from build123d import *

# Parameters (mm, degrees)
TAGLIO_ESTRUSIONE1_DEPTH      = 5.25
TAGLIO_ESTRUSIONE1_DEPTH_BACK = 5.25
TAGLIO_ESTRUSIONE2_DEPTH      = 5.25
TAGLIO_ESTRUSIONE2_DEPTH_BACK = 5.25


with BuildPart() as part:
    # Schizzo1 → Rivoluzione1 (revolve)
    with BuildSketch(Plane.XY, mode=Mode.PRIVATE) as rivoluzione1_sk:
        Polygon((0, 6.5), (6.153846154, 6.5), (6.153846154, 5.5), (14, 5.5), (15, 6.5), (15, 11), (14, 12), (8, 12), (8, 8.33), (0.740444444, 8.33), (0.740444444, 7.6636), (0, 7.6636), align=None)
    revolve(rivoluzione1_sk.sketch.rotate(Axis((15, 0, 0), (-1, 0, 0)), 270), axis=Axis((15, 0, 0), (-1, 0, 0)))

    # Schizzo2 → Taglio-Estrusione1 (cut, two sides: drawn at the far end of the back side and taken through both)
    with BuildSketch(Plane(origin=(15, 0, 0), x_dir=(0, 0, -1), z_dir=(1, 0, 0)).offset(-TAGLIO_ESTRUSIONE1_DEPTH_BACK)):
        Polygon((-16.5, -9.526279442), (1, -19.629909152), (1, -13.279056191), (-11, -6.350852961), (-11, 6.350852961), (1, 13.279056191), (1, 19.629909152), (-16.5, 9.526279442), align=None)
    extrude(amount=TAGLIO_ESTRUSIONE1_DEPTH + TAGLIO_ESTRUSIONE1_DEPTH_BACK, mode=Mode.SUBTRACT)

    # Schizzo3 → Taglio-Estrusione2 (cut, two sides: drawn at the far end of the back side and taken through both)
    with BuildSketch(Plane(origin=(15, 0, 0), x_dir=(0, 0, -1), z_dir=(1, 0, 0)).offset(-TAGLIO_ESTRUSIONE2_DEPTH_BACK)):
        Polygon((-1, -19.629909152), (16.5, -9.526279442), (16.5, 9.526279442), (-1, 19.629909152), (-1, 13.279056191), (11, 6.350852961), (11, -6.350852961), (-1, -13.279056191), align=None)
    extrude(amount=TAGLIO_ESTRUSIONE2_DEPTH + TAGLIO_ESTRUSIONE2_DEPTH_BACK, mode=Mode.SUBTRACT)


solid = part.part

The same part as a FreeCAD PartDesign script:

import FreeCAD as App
import Part
import Sketcher
Q = App.Units.Quantity

doc = App.newDocument("Part")
body = doc.addObject("PartDesign::Body", "Body")

sketch1 = body.newObject("Sketcher::SketchObject", "Sketch")
sketch1.AttachmentSupport = (doc.getObject("XY_Plane"), [""])
sketch1.MapMode = "FlatFace"
sketch1.addGeometry(Part.LineSegment(App.Vector(0, 6.5, 0), App.Vector(6.153846, 6.5, 0)), False)
sketch1.addGeometry(Part.LineSegment(App.Vector(6.153846, 6.5, 0), App.Vector(6.153846, 5.5, 0)), False)
sketch1.addGeometry(Part.LineSegment(App.Vector(6.153846, 5.5, 0), App.Vector(14, 5.5, 0)), False)
sketch1.addGeometry(Part.LineSegment(App.Vector(14, 5.5, 0), App.Vector(15, 6.5, 0)), False)
sketch1.addGeometry(Part.LineSegment(App.Vector(15, 6.5, 0), App.Vector(15, 11, 0)), False)
sketch1.addGeometry(Part.LineSegment(App.Vector(15, 11, 0), App.Vector(14, 12, 0)), False)
sketch1.addGeometry(Part.LineSegment(App.Vector(14, 12, 0), App.Vector(8, 12, 0)), False)
sketch1.addGeometry(Part.LineSegment(App.Vector(8, 12, 0), App.Vector(8, 8.33, 0)), False)
sketch1.addGeometry(Part.LineSegment(App.Vector(8, 8.33, 0), App.Vector(0.740444, 8.33, 0)), False)
sketch1.addGeometry(Part.LineSegment(App.Vector(0.740444, 8.33, 0), App.Vector(0.740444, 7.6636, 0)), False)
sketch1.addGeometry(Part.LineSegment(App.Vector(0.740444, 7.6636, 0), App.Vector(0, 7.6636, 0)), False)
sketch1.addGeometry(Part.LineSegment(App.Vector(0, 7.6636, 0), App.Vector(0, 6.5, 0)), False)
sketch1.addConstraint(Sketcher.Constraint("Coincident", 0, 2, 1, 1))
sketch1.addConstraint(Sketcher.Constraint("Coincident", 1, 2, 2, 1))
sketch1.addConstraint(Sketcher.Constraint("Coincident", 2, 2, 3, 1))
sketch1.addConstraint(Sketcher.Constraint("Coincident", 3, 2, 4, 1))
sketch1.addConstraint(Sketcher.Constraint("Coincident", 4, 2, 5, 1))
sketch1.addConstraint(Sketcher.Constraint("Coincident", 5, 2, 6, 1))
sketch1.addConstraint(Sketcher.Constraint("Coincident", 6, 2, 7, 1))
sketch1.addConstraint(Sketcher.Constraint("Coincident", 7, 2, 8, 1))
sketch1.addConstraint(Sketcher.Constraint("Coincident", 8, 2, 9, 1))
sketch1.addConstraint(Sketcher.Constraint("Coincident", 9, 2, 10, 1))
sketch1.addConstraint(Sketcher.Constraint("Coincident", 10, 2, 11, 1))
sketch1.addConstraint(Sketcher.Constraint("Coincident", 11, 2, 0, 1))
sketch1.addConstraint(Sketcher.Constraint("Horizontal", 0))
sketch1.addConstraint(Sketcher.Constraint("Vertical", 1))
sketch1.addConstraint(Sketcher.Constraint("Horizontal", 2))
sketch1.addConstraint(Sketcher.Constraint("Vertical", 4))
sketch1.addConstraint(Sketcher.Constraint("Horizontal", 6))
sketch1.addConstraint(Sketcher.Constraint("Vertical", 7))
sketch1.addConstraint(Sketcher.Constraint("Horizontal", 8))
sketch1.addConstraint(Sketcher.Constraint("Vertical", 9))
sketch1.addConstraint(Sketcher.Constraint("Horizontal", 10))
sketch1.addConstraint(Sketcher.Constraint("Vertical", 11))
sketch1.addConstraint(Sketcher.Constraint("PointOnObject", 10, 2, -2))
sketch1.addConstraint(Sketcher.Constraint("Perpendicular", 3, 5))
sketch1.addConstraint(Sketcher.Constraint("Horizontal", 0, 2, 3, 2))
sketch1.addConstraint(Sketcher.Constraint("Vertical", 2, 2, 5, 2))
sketch1.addConstraint(Sketcher.Constraint("Equal", 3, 5))
sketch1.addConstraint(Sketcher.Constraint("DistanceX", 6, 2, 6, 1, 6.0))
sketch1.addConstraint(Sketcher.Constraint("DistanceY", 1, 2, 1, 1, 1.0))
sketch1.addConstraint(Sketcher.Constraint("DistanceY", 4, 1, 4, 2, 4.5))
sketch1.addConstraint(Sketcher.Constraint("DistanceX", -1, 1, 2, 2, 14.0))
sketch1.addConstraint(Sketcher.Constraint("DistanceY", -1, 1, 4, 2, 11.0))
sketch1.addConstraint(Sketcher.Constraint("DistanceY", 7, 2, 7, 1, 3.67))
sketch1.addConstraint(Sketcher.Constraint("DistanceY", 9, 2, 9, 1, 0.6664))
sketch1.addConstraint(Sketcher.Constraint("DistanceX", 8, 2, 0, 2, 5.413402))
sketch1.addConstraint(Sketcher.Constraint("DistanceX", 0, 1, 0, 2, 6.153846))
revolution = body.newObject("PartDesign::Revolution", "Revolution")
revolution.Profile = sketch1
revolution.ReferenceAxis = (sketch1, ["H_Axis"])
revolution.Angle = 360

sketch2 = body.newObject("Sketcher::SketchObject", "Sketch001")
sketch2.AttachmentSupport = (doc.getObject("YZ_Plane"), [""])
sketch2.MapMode = "FlatFace"
sketch2.AttachmentOffset = App.Placement(App.Vector(0, 0, 15), App.Rotation())
sketch2.addGeometry(Part.LineSegment(App.Vector(-9.526279, 16.5, 0), App.Vector(-19.629909, -1, 0)), False)
sketch2.addGeometry(Part.LineSegment(App.Vector(-19.629909, -1, 0), App.Vector(-13.279056, -1, 0)), False)
sketch2.addGeometry(Part.LineSegment(App.Vector(-13.279056, -1, 0), App.Vector(-6.350853, 11, 0)), False)
sketch2.addGeometry(Part.LineSegment(App.Vector(-6.350853, 11, 0), App.Vector(6.350853, 11, 0)), False)
sketch2.addGeometry(Part.LineSegment(App.Vector(6.350853, 11, 0), App.Vector(13.279056, -1, 0)), False)
sketch2.addGeometry(Part.LineSegment(App.Vector(13.279056, -1, 0), App.Vector(19.629909, -1, 0)), False)
sketch2.addGeometry(Part.LineSegment(App.Vector(19.629909, -1, 0), App.Vector(9.526279, 16.5, 0)), False)
sketch2.addGeometry(Part.LineSegment(App.Vector(9.526279, 16.5, 0), App.Vector(-9.526279, 16.5, 0)), False)
sketch2.addConstraint(Sketcher.Constraint("Coincident", 0, 2, 1, 1))
sketch2.addConstraint(Sketcher.Constraint("Coincident", 1, 2, 2, 1))
sketch2.addConstraint(Sketcher.Constraint("Coincident", 2, 2, 3, 1))
sketch2.addConstraint(Sketcher.Constraint("Coincident", 3, 2, 4, 1))
sketch2.addConstraint(Sketcher.Constraint("Coincident", 4, 2, 5, 1))
sketch2.addConstraint(Sketcher.Constraint("Coincident", 5, 2, 6, 1))
sketch2.addConstraint(Sketcher.Constraint("Coincident", 6, 2, 7, 1))
sketch2.addConstraint(Sketcher.Constraint("Coincident", 7, 2, 0, 1))
sketch2.addConstraint(Sketcher.Constraint("Horizontal", 1))
sketch2.addConstraint(Sketcher.Constraint("Horizontal", 3))
sketch2.addConstraint(Sketcher.Constraint("Horizontal", 5))
sketch2.addConstraint(Sketcher.Constraint("Horizontal", 7))
sketch2.addConstraint(Sketcher.Constraint("Symmetric", 1, 2, 4, 2, -2))
sketch2.addConstraint(Sketcher.Constraint("Parallel", 0, 2))
sketch2.addConstraint(Sketcher.Constraint("Parallel", 4, 6))
sketch2.addConstraint(Sketcher.Constraint("Equal", 1, 5))
sketch2.addConstraint(Sketcher.Constraint("Equal", 2, 4))
sketch2.addConstraint(Sketcher.Constraint("Angle", 0, Q("-120 deg")))
sketch2.addConstraint(Sketcher.Constraint("DistanceY", 0, 2, -1, 1, 1.0))
sketch2.addConstraint(Sketcher.Constraint("DistanceY", -1, 1, 2, 2, 11.0))
sketch2.addConstraint(Sketcher.Constraint("DistanceY", -1, 1, 6, 2, 16.5))
sketch2.addConstraint(Sketcher.Constraint("DistanceX", 7, 2, 7, 1, 19.052559))
sketch2.addConstraint(Sketcher.Constraint("DistanceX", 1, 1, 1, 2, 6.350853))
pocket1 = body.newObject("PartDesign::Pocket", "Pocket")
pocket1.Profile = sketch2
pocket1.Type = "TwoLengths"
pocket1.Length = 5.25
pocket1.Length2 = 5.25
pocket1.Reversed = True

sketch3 = body.newObject("Sketcher::SketchObject", "Sketch002")
sketch3.AttachmentSupport = (doc.getObject("YZ_Plane"), [""])
sketch3.MapMode = "FlatFace"
sketch3.AttachmentOffset = App.Placement(App.Vector(0, 0, 15), App.Rotation())
sketch3.addGeometry(Part.LineSegment(App.Vector(-19.629909, 1, 0), App.Vector(-9.526279, -16.5, 0)), False)
sketch3.addGeometry(Part.LineSegment(App.Vector(-9.526279, -16.5, 0), App.Vector(9.526279, -16.5, 0)), False)
sketch3.addGeometry(Part.LineSegment(App.Vector(9.526279, -16.5, 0), App.Vector(19.629909, 1, 0)), False)
sketch3.addGeometry(Part.LineSegment(App.Vector(19.629909, 1, 0), App.Vector(13.279056, 1, 0)), False)
sketch3.addGeometry(Part.LineSegment(App.Vector(13.279056, 1, 0), App.Vector(6.350853, -11, 0)), False)
sketch3.addGeometry(Part.LineSegment(App.Vector(6.350853, -11, 0), App.Vector(-6.350853, -11, 0)), False)
sketch3.addGeometry(Part.LineSegment(App.Vector(-6.350853, -11, 0), App.Vector(-13.279056, 1, 0)), False)
sketch3.addGeometry(Part.LineSegment(App.Vector(-13.279056, 1, 0), App.Vector(-19.629909, 1, 0)), False)
sketch3.addConstraint(Sketcher.Constraint("Coincident", 0, 2, 1, 1))
sketch3.addConstraint(Sketcher.Constraint("Coincident", 1, 2, 2, 1))
sketch3.addConstraint(Sketcher.Constraint("Coincident", 2, 2, 3, 1))
sketch3.addConstraint(Sketcher.Constraint("Coincident", 3, 2, 4, 1))
sketch3.addConstraint(Sketcher.Constraint("Coincident", 4, 2, 5, 1))
sketch3.addConstraint(Sketcher.Constraint("Coincident", 5, 2, 6, 1))
sketch3.addConstraint(Sketcher.Constraint("Coincident", 6, 2, 7, 1))
sketch3.addConstraint(Sketcher.Constraint("Coincident", 7, 2, 0, 1))
sketch3.addConstraint(Sketcher.Constraint("Horizontal", 1))
sketch3.addConstraint(Sketcher.Constraint("Horizontal", 3))
sketch3.addConstraint(Sketcher.Constraint("Horizontal", 5))
sketch3.addConstraint(Sketcher.Constraint("Horizontal", 7))
sketch3.addConstraint(Sketcher.Constraint("Symmetric", 3, 2, 6, 2, -2))
sketch3.addConstraint(Sketcher.Constraint("Parallel", 2, 4))
sketch3.addConstraint(Sketcher.Constraint("Parallel", 0, 6))
sketch3.addConstraint(Sketcher.Constraint("Equal", 3, 7))
sketch3.addConstraint(Sketcher.Constraint("Equal", 0, 2))
sketch3.addConstraint(Sketcher.Constraint("Angle", 0, Q("-60 deg")))
sketch3.addConstraint(Sketcher.Constraint("DistanceY", -1, 1, 2, 2, 1.0))
sketch3.addConstraint(Sketcher.Constraint("DistanceY", 4, 2, -1, 1, 11.0))
sketch3.addConstraint(Sketcher.Constraint("DistanceY", 0, 2, -1, 1, 16.5))
sketch3.addConstraint(Sketcher.Constraint("DistanceX", 1, 1, 1, 2, 19.052559))
sketch3.addConstraint(Sketcher.Constraint("DistanceX", 3, 2, 3, 1, 6.350853))
pocket2 = body.newObject("PartDesign::Pocket", "Pocket001")
pocket2.Profile = sketch3
pocket2.Type = "TwoLengths"
pocket2.Length = 5.25
pocket2.Length2 = 5.25
pocket2.Reversed = True

doc.recompute()
